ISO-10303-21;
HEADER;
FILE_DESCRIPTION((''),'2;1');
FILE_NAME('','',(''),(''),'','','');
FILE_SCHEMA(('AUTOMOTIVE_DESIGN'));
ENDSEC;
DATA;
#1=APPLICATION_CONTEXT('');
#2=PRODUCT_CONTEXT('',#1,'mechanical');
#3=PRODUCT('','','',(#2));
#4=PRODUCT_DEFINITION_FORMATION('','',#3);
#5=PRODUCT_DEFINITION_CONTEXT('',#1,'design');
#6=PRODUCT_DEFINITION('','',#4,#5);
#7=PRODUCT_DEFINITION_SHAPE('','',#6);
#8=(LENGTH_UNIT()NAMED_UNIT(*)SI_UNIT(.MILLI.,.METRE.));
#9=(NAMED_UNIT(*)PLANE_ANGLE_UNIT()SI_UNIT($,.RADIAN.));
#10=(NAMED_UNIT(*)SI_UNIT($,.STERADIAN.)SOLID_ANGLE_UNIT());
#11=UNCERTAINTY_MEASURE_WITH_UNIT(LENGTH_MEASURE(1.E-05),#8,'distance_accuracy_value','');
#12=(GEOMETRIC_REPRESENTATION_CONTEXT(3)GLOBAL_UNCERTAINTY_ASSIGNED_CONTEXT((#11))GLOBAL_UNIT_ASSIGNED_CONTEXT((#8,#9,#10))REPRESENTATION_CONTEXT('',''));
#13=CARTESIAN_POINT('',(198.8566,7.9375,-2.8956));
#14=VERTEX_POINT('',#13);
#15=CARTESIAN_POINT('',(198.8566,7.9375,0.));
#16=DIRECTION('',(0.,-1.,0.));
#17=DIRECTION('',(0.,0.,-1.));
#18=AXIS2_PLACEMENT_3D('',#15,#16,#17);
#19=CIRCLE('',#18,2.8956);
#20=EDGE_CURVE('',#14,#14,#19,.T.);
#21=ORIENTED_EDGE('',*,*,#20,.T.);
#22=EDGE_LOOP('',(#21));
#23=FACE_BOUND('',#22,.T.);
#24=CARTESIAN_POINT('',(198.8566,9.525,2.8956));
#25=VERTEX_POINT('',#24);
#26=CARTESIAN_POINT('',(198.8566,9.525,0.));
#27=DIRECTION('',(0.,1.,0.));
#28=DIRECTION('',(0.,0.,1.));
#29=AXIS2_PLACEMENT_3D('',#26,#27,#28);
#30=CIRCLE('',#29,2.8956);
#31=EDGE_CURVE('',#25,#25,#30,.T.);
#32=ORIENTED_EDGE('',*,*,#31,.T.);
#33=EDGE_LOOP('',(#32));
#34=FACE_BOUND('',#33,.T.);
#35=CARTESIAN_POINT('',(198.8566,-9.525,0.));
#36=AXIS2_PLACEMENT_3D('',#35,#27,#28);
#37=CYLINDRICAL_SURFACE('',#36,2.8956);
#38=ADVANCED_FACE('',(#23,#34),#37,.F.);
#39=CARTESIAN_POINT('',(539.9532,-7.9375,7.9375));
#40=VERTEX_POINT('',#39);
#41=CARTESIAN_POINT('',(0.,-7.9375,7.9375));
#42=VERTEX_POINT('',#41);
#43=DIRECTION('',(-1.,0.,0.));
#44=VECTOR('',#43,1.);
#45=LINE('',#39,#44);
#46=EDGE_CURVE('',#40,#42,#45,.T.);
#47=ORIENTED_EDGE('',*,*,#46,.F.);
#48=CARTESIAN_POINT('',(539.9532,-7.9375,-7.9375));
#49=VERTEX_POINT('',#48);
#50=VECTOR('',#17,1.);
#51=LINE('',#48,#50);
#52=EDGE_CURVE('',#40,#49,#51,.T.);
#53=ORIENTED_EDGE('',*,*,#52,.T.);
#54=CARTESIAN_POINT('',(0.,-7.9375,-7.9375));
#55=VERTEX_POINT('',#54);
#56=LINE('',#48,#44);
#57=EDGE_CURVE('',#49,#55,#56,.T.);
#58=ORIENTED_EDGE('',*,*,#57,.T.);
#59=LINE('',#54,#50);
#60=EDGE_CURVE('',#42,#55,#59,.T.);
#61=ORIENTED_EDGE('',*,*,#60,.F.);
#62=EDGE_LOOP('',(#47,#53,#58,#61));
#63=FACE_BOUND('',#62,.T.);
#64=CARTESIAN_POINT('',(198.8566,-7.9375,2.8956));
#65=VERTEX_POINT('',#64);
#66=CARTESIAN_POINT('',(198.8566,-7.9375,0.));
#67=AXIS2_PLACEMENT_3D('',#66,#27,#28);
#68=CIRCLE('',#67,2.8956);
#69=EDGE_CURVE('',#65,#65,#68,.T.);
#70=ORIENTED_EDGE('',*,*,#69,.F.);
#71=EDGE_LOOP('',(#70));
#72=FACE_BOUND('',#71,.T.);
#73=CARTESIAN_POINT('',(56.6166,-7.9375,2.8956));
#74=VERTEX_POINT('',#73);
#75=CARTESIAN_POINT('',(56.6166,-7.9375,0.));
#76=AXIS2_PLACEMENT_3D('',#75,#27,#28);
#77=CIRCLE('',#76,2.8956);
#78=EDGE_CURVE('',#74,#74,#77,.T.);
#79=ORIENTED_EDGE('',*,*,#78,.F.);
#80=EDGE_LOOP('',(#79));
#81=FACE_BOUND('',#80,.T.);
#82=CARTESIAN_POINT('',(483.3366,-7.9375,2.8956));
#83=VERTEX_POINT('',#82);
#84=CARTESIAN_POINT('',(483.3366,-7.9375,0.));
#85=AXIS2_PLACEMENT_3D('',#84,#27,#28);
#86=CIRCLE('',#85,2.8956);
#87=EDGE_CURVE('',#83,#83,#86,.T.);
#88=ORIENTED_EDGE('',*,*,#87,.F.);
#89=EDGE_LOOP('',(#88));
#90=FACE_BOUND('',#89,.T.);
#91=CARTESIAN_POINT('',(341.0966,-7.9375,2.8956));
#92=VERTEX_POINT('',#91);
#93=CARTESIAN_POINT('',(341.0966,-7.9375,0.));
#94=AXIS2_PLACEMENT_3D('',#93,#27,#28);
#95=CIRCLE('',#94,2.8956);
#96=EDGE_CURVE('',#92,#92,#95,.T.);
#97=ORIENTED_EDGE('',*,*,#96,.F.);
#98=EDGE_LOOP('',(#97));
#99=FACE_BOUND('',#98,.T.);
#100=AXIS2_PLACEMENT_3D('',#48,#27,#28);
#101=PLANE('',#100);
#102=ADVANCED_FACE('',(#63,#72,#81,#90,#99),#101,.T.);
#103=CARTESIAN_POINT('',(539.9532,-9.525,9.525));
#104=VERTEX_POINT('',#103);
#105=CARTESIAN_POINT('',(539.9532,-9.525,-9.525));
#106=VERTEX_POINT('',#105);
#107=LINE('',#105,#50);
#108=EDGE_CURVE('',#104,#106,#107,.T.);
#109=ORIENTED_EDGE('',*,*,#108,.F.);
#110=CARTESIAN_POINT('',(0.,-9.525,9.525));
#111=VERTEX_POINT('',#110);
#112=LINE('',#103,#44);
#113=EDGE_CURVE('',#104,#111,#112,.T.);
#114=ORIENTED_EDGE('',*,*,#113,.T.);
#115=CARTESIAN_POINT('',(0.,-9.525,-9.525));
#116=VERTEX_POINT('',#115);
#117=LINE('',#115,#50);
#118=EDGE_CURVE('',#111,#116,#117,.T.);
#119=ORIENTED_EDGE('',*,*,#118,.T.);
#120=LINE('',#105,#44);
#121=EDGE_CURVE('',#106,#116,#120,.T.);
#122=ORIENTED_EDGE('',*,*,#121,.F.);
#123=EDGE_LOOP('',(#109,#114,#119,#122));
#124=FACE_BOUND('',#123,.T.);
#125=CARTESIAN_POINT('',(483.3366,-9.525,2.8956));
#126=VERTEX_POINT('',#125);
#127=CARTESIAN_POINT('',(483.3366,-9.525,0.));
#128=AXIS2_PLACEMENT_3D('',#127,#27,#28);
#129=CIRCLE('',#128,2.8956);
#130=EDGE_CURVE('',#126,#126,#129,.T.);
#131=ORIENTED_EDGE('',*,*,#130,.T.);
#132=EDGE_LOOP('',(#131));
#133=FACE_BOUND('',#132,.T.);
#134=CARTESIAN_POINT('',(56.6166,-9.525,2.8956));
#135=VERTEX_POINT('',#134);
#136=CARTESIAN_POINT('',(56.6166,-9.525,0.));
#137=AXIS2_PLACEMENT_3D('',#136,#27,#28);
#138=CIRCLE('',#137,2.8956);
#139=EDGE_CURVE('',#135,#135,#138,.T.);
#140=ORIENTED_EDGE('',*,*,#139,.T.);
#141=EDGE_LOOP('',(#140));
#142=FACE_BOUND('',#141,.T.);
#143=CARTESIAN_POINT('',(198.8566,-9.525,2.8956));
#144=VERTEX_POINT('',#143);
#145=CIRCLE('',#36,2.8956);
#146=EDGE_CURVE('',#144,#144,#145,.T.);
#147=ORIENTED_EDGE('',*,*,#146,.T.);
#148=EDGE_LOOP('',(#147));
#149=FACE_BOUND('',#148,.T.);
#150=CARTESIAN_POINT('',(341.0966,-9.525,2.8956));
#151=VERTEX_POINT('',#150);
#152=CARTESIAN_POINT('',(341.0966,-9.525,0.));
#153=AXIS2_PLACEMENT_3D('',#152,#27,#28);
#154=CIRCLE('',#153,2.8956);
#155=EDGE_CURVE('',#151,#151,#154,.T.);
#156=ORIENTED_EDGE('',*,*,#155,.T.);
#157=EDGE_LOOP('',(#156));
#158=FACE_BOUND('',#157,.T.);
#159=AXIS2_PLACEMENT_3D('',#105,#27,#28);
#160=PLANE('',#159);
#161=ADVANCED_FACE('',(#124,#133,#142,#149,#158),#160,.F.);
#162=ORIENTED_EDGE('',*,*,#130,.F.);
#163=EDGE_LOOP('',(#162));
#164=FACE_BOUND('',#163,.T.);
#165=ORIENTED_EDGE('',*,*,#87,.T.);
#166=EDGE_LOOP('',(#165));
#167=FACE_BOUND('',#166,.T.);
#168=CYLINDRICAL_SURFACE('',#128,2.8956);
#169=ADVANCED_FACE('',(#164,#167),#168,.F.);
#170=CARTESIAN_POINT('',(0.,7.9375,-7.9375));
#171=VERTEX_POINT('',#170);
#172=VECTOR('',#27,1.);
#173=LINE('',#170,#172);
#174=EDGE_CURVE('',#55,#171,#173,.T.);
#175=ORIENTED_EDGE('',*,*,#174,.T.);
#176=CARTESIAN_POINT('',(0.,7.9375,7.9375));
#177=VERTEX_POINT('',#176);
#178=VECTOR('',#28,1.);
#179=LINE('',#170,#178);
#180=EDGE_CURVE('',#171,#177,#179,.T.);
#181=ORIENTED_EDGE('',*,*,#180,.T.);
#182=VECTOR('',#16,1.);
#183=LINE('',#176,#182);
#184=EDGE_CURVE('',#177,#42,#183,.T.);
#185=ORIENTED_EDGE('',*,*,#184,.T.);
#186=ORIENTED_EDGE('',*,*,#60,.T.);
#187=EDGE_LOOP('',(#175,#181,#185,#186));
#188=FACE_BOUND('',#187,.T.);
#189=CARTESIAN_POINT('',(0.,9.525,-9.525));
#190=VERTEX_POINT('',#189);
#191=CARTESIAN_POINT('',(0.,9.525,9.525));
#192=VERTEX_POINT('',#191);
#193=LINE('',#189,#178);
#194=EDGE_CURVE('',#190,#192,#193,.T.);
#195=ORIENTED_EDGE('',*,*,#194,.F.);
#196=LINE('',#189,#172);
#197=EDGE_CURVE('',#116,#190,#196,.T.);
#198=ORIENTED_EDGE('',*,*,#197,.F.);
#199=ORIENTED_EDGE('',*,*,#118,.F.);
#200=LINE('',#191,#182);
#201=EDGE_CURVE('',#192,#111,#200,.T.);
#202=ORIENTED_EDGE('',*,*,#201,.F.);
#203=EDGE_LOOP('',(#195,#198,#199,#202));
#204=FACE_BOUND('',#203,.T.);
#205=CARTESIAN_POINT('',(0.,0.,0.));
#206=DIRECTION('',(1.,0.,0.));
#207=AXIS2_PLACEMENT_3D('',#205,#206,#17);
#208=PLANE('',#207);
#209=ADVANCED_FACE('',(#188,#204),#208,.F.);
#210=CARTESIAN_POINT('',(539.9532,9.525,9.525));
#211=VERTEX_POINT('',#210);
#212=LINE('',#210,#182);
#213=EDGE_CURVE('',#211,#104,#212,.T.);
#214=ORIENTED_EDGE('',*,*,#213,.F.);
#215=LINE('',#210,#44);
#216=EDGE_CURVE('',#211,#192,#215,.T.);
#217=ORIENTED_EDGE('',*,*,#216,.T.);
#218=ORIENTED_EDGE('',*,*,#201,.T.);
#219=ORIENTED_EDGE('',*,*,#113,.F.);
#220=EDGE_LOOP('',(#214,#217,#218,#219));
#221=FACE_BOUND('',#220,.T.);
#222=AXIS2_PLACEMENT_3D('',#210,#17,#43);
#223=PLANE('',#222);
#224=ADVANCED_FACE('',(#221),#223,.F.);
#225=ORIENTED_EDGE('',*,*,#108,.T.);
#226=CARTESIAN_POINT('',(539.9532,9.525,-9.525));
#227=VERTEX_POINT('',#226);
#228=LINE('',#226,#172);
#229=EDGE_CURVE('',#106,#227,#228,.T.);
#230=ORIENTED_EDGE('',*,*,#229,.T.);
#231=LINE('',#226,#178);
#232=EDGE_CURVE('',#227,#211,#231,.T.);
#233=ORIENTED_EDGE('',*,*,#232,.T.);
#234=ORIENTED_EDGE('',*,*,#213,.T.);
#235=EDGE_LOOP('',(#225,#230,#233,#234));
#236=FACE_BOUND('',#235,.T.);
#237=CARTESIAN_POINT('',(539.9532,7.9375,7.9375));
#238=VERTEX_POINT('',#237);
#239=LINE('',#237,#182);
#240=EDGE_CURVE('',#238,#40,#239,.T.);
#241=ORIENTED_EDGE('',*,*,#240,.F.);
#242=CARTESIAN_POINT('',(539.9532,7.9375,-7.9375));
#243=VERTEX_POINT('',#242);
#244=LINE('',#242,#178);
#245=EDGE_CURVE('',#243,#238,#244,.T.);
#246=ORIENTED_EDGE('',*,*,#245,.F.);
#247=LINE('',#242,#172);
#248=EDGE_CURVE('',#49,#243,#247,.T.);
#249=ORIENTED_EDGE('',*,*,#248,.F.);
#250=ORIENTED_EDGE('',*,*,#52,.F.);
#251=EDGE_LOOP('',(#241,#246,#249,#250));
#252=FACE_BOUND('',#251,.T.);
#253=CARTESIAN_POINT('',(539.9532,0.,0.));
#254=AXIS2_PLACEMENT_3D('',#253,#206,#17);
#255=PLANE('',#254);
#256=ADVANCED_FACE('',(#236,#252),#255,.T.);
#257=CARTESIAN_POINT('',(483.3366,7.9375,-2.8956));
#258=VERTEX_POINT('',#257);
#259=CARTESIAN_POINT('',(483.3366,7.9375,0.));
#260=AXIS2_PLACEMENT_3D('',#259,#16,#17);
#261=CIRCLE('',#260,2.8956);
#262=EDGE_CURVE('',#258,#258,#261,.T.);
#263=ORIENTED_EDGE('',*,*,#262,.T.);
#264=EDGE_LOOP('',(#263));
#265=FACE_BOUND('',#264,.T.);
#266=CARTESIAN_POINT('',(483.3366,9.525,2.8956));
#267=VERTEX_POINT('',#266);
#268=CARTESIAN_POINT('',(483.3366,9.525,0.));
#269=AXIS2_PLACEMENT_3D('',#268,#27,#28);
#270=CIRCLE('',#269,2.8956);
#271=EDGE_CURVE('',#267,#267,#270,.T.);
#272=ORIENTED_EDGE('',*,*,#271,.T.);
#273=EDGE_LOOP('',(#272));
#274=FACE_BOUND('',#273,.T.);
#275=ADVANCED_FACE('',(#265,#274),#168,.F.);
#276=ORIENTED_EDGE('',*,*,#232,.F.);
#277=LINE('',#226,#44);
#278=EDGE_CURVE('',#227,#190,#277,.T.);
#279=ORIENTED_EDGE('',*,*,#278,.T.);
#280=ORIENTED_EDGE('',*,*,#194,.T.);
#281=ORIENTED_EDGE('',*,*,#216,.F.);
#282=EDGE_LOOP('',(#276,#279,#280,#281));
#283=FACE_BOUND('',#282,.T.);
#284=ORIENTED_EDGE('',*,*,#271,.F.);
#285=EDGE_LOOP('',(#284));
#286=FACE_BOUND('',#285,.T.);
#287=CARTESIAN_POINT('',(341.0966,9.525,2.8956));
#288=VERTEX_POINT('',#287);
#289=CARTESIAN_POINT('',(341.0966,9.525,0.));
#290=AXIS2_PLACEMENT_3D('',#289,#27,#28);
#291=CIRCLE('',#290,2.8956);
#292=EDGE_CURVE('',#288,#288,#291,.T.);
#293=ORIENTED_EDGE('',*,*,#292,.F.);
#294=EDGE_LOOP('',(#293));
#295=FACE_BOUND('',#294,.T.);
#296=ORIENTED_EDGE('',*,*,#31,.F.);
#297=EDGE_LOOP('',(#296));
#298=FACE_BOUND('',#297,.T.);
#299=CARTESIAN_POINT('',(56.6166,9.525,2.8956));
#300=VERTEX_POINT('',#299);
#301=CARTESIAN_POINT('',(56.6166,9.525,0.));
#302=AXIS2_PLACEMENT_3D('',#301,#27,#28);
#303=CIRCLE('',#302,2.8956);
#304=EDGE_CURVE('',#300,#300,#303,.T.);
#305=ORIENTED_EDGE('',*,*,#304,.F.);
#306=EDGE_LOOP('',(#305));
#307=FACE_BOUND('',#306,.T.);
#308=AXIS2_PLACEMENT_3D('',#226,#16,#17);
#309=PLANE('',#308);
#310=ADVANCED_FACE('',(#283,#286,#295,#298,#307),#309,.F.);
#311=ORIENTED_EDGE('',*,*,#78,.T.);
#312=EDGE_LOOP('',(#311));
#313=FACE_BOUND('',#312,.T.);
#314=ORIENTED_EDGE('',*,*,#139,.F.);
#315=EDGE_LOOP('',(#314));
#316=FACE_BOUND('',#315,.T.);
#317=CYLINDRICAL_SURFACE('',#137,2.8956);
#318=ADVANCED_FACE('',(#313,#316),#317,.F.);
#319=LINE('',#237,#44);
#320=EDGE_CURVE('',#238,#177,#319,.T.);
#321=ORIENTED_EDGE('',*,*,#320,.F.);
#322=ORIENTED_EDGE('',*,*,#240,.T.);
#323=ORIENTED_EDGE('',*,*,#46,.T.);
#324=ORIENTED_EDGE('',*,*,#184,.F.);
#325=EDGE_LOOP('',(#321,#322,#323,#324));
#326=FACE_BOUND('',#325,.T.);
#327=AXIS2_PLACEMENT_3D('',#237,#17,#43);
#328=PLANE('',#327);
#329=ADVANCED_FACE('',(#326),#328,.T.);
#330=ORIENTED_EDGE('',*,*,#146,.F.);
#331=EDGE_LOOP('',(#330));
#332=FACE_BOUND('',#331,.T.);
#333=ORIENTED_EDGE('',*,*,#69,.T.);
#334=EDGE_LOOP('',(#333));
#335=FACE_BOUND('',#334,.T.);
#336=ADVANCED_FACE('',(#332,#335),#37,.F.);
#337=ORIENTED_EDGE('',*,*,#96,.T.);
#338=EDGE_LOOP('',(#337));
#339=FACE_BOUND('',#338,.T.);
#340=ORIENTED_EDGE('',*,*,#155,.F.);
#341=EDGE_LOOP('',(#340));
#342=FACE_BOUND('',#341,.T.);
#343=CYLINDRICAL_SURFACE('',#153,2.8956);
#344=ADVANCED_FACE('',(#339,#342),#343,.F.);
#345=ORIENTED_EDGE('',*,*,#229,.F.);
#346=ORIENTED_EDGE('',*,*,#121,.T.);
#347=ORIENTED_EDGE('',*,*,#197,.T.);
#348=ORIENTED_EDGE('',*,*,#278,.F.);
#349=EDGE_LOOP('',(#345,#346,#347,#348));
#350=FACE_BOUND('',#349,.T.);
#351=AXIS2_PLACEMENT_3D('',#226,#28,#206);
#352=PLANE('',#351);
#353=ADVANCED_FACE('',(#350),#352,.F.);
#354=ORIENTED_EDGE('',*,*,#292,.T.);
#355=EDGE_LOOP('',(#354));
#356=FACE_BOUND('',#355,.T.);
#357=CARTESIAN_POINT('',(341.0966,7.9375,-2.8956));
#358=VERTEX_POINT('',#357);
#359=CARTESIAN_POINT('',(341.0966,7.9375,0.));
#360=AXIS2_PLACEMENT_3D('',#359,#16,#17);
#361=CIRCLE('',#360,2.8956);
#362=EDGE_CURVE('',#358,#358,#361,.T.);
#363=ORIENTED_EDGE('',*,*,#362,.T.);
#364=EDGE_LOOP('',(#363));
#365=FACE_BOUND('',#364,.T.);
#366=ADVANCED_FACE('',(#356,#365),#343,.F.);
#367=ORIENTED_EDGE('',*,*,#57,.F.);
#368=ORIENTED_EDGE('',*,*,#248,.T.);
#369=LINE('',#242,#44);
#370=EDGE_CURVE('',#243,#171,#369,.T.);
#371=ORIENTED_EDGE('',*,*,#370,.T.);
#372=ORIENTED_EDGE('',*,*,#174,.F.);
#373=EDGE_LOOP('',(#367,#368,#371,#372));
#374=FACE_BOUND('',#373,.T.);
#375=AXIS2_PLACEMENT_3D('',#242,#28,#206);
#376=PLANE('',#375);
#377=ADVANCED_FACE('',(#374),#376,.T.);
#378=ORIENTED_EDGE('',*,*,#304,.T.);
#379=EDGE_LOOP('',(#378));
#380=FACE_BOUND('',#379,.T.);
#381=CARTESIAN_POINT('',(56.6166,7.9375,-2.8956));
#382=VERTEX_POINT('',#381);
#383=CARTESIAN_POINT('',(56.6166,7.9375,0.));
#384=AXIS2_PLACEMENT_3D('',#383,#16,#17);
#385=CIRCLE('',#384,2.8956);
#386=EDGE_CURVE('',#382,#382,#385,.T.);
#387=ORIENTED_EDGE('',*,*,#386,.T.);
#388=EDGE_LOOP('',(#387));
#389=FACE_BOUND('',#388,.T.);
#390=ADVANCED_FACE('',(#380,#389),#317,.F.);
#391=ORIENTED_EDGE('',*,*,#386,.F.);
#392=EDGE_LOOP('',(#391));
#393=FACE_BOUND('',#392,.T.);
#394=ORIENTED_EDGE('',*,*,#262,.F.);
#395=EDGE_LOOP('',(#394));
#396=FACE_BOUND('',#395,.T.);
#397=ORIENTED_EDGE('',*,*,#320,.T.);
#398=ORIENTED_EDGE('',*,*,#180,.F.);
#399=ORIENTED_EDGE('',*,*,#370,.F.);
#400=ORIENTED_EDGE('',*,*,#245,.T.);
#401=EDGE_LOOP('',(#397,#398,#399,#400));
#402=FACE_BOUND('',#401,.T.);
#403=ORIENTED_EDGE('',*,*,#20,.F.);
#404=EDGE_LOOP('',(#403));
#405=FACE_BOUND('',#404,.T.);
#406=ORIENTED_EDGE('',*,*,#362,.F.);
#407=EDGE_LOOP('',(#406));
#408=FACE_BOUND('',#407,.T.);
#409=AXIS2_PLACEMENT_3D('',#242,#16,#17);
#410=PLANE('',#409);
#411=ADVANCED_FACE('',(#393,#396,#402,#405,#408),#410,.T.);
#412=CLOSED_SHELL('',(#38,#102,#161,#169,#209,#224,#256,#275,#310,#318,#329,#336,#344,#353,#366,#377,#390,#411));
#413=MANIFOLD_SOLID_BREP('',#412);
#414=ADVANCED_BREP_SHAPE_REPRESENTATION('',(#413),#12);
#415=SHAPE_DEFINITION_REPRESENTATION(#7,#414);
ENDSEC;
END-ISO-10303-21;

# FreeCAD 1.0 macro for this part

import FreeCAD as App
import Part
import Sketcher
Q = App.Units.Quantity


def add_polygon(sketch, points):
    """Adds a closed chain of lines whose ends are joined by coincident constraints."""
    first, n = sketch.GeometryCount, len(points)
    for a, b in zip(points, points[1:] + points[:1]):
        sketch.addGeometry(Part.LineSegment(App.Vector(*a, 0), App.Vector(*b, 0)), False)
    for i in range(n):
        sketch.addConstraint(Sketcher.Constraint("Coincident", first + i, 2, first + (i + 1) % n, 1))

doc = App.newDocument("Part")
body = doc.addObject("PartDesign::Body", "Body")

sketch1 = body.newObject("Sketcher::SketchObject", "Sketch")
sketch1.AttachmentSupport = (doc.getObject("YZ_Plane"), [""])
sketch1.MapMode = "FlatFace"
add_polygon(sketch1, [(9.525, -9.525), (9.525, 9.525), (-9.525, 9.525), (-9.525, -9.525)])
add_polygon(sketch1, [(-7.9375, 7.9375), (7.9375, 7.9375), (7.9375, -7.9375), (-7.9375, -7.9375)])
sketch1.addConstraint(Sketcher.Constraint("Vertical", 0))
sketch1.addConstraint(Sketcher.Constraint("Horizontal", 1))
sketch1.addConstraint(Sketcher.Constraint("Vertical", 2))
sketch1.addConstraint(Sketcher.Constraint("Horizontal", 3))
sketch1.addConstraint(Sketcher.Constraint("Horizontal", 4))
sketch1.addConstraint(Sketcher.Constraint("Vertical", 5))
sketch1.addConstraint(Sketcher.Constraint("Horizontal", 6))
sketch1.addConstraint(Sketcher.Constraint("Vertical", 7))
sketch1.addConstraint(Sketcher.Constraint("Symmetric", 0, 2, 2, 2, -1, 1))
sketch1.addConstraint(Sketcher.Constraint("Symmetric", 4, 2, 6, 2, -1, 1))
sketch1.addConstraint(Sketcher.Constraint("Equal", 3, 0))
sketch1.addConstraint(Sketcher.Constraint("Equal", 6, 5))
sketch1.addConstraint(Sketcher.Constraint("DistanceX", 1, 2, 1, 1, Q("0.75 in")))
sketch1.addConstraint(Sketcher.Constraint("DistanceX", 4, 1, 4, 2, Q("0.625 in")))
pad1 = body.newObject("PartDesign::Pad", "Pad")
pad1.Profile = sketch1
pad1.Length = Q("21.258 in")

sketch2 = body.newObject("Sketcher::SketchObject", "Sketch001")
sketch2.AttachmentSupport = (doc.getObject("XZ_Plane"), [""])
sketch2.MapMode = "FlatFace"
sketch2.AttachmentOffset = App.Placement(App.Vector(0, 0, -0.375 * 25.4), App.Rotation())
sketch2.addGeometry(Part.Circle(App.Vector(56.6166, 0, 0), App.Vector(0, 0, 1), 2.8956), False)
sketch2.addConstraint(Sketcher.Constraint("PointOnObject", 0, 3, -1))
sketch2.addConstraint(Sketcher.Constraint("Diameter", 0, Q("0.228 in")))
sketch2.addConstraint(Sketcher.Constraint("DistanceX", -1, 1, 0, 3, Q("2.229 in")))
pocket1 = body.newObject("PartDesign::Pocket", "Pocket")
pocket1.Profile = sketch2
pocket1.Type = "ThroughAll"
pocket1.Reversed = True
doc.recompute()

linearpattern = body.newObject("PartDesign::LinearPattern", "LinearPattern")
linearpattern.Originals = [pocket1]
linearpattern.Direction = (doc.getObject("X_Axis"), [""])
linearpattern.Mode = "offset"
linearpattern.Offset = Q("5.6 in")
linearpattern.Occurrences = 4
body.Tip = linearpattern

doc.recompute()
